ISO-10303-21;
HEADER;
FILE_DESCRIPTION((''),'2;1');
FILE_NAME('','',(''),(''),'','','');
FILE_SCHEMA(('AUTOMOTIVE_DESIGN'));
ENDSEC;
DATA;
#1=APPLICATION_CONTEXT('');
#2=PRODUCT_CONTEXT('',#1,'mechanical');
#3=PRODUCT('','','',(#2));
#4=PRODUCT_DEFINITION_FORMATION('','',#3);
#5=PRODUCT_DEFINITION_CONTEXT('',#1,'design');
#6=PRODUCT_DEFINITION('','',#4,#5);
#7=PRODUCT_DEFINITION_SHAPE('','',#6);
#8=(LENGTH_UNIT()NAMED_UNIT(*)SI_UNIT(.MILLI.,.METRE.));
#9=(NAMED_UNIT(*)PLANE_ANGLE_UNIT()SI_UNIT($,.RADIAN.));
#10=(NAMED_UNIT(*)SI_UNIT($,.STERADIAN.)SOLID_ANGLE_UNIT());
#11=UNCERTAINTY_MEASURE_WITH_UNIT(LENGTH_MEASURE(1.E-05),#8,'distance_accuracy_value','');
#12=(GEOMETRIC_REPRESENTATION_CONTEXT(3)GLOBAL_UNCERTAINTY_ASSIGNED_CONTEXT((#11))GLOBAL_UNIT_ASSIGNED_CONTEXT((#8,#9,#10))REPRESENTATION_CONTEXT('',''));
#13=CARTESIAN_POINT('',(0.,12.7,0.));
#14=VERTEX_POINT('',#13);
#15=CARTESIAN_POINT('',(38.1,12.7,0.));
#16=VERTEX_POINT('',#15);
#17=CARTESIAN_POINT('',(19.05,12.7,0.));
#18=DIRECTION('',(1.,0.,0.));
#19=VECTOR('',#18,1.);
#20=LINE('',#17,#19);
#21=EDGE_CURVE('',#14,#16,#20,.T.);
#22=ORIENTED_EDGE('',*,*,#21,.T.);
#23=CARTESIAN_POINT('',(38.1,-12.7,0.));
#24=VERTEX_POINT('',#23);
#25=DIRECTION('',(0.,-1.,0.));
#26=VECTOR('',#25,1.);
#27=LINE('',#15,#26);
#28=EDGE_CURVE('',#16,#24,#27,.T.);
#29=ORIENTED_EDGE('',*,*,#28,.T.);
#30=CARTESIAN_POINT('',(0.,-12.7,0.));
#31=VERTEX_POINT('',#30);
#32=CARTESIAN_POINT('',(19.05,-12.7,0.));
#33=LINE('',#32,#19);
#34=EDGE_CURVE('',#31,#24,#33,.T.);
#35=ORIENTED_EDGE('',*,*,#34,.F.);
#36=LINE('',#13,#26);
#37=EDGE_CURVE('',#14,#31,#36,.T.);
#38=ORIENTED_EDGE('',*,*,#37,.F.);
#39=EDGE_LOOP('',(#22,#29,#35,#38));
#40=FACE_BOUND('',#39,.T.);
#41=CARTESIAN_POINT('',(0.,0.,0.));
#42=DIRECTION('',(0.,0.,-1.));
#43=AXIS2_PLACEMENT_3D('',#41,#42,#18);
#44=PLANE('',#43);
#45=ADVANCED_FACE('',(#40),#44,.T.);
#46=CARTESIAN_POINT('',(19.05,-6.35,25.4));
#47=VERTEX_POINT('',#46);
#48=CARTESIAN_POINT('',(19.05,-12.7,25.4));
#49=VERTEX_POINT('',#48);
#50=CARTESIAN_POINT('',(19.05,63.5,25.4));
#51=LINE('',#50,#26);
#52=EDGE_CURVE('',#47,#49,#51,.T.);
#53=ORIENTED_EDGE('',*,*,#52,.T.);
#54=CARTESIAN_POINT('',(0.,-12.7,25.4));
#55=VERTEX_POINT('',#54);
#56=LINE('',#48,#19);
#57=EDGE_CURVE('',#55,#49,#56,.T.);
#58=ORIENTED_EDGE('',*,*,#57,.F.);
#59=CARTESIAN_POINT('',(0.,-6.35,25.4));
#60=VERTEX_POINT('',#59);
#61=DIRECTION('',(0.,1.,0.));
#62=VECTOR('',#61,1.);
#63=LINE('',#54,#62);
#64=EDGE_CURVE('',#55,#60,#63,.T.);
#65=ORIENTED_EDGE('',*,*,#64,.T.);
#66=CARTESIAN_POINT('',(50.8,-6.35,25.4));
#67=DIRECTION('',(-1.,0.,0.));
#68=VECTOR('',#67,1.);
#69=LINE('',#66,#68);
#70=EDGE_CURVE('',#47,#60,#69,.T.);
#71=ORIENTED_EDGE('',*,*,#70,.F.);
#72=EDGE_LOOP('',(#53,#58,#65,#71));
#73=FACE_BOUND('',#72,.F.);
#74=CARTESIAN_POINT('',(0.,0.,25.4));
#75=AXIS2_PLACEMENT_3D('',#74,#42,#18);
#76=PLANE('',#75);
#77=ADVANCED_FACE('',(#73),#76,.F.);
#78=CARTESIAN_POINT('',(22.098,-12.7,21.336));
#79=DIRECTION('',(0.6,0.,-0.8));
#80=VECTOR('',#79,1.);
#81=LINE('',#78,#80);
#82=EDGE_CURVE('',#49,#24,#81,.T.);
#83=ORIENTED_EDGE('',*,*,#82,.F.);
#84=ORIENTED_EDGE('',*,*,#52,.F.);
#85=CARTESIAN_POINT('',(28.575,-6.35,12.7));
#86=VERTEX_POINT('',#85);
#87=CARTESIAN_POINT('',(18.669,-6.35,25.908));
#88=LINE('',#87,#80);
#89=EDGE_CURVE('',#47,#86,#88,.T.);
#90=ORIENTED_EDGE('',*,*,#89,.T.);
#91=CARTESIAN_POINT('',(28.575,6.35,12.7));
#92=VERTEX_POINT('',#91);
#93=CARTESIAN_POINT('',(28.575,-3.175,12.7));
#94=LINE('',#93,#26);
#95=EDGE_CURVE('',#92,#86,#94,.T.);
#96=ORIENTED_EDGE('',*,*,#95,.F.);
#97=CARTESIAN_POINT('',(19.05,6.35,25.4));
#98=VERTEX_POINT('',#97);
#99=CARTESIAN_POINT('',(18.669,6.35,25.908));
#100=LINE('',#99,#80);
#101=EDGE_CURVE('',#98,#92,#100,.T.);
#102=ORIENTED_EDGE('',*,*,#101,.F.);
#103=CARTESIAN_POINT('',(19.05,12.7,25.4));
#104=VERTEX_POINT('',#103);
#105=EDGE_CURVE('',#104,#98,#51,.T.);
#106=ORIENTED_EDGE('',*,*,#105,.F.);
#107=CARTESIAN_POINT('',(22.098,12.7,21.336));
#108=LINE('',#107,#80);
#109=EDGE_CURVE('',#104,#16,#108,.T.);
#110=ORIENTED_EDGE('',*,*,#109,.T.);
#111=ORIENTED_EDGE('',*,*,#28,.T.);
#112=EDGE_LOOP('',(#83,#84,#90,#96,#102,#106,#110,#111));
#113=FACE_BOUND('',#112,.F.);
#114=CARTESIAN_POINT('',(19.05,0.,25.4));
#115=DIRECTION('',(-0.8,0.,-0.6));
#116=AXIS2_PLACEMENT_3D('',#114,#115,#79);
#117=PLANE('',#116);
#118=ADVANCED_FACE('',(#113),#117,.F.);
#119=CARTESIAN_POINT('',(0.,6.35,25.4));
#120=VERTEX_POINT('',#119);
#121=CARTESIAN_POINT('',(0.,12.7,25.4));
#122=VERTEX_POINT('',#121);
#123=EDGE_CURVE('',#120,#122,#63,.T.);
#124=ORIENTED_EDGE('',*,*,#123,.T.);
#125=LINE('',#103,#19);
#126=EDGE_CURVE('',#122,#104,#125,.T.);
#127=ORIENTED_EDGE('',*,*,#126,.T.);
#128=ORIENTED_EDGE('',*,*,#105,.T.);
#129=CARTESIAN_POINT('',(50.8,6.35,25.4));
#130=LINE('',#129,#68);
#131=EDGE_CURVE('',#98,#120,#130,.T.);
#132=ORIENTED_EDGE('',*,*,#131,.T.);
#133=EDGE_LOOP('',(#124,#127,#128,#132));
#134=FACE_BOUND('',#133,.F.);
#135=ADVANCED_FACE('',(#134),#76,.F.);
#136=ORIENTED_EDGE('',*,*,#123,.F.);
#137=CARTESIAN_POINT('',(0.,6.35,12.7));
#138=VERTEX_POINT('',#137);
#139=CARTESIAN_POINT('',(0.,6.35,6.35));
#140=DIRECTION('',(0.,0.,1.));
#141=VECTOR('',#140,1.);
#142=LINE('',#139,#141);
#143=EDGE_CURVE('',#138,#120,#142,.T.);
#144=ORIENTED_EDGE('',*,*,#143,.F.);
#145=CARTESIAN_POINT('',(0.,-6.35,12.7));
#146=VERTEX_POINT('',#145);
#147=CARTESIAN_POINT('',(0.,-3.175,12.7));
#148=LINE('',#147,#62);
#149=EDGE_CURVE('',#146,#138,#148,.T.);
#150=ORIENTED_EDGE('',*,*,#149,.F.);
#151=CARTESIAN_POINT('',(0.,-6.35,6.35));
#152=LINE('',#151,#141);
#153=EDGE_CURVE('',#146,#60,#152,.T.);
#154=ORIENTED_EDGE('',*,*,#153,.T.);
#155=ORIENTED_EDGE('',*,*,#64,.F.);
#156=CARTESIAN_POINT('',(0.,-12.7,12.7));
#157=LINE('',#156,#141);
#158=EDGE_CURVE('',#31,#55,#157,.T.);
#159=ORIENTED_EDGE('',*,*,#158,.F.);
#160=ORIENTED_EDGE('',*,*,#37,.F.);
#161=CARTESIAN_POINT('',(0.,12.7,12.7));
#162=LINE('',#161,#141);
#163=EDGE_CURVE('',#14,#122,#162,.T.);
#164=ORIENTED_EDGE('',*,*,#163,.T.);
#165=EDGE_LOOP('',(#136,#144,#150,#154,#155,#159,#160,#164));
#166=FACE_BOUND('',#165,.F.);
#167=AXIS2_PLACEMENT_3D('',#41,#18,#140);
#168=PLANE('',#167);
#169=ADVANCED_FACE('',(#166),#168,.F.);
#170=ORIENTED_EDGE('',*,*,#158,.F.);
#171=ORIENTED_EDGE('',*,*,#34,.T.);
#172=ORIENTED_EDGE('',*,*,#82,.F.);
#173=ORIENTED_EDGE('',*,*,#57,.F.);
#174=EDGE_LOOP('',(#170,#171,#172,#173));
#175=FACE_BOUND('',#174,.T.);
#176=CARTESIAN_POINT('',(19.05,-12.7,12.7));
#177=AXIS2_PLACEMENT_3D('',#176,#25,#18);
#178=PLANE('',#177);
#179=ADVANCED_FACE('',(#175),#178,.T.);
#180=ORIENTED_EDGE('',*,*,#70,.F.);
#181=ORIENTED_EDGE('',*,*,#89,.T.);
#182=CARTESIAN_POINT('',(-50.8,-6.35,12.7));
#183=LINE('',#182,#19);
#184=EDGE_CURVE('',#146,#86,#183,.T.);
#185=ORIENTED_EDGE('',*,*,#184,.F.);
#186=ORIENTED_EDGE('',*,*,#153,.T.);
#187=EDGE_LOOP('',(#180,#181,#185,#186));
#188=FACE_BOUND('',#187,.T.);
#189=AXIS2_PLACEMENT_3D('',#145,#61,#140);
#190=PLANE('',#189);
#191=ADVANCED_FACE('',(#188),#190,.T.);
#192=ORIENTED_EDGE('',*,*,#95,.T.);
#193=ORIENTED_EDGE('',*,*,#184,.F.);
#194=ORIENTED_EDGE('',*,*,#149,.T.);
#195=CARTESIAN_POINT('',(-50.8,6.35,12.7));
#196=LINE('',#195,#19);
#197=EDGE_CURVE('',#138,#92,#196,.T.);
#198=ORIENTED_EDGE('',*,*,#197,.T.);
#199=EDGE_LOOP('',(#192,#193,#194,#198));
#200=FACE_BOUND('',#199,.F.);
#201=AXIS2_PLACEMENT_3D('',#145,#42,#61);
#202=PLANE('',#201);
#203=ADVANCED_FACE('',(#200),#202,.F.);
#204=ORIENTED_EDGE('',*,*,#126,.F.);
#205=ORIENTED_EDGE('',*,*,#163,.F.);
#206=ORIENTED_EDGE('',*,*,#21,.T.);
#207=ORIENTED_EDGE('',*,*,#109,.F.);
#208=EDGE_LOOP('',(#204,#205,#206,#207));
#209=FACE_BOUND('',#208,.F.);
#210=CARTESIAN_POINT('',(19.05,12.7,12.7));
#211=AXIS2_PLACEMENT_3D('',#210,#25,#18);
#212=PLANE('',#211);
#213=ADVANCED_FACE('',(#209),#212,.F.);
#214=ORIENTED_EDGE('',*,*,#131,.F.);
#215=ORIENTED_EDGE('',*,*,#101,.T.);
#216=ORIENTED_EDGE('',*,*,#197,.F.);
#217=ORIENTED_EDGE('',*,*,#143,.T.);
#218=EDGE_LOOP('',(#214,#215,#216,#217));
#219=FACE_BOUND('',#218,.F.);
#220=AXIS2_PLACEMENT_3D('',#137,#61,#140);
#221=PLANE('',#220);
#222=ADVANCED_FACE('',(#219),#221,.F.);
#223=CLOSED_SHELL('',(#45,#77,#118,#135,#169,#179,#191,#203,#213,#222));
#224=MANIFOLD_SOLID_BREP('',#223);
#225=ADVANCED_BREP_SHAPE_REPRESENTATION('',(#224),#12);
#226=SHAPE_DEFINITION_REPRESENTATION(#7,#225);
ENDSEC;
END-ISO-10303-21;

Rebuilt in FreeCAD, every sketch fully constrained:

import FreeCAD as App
import Part
import Sketcher

V = App.Vector
Q = App.Units.Quantity


def add_polygon(sketch, points):
    """Adds a closed chain of lines whose ends are joined by coincident constraints."""
    first, n = sketch.GeometryCount, len(points)
    for a, b in zip(points, points[1:] + points[:1]):
        sketch.addGeometry(Part.LineSegment(App.Vector(*a, 0), App.Vector(*b, 0)), False)
    for i in range(n):
        sketch.addConstraint(Sketcher.Constraint("Coincident", first + i, 2, first + (i + 1) % n, 1))

doc = App.newDocument("Part")
body = doc.addObject("PartDesign::Body", "Body")

# Sketch on XZ plane
sketch1 = doc.addObject("Sketcher::SketchObject", "Sketch")
body.addObject(sketch1)
sketch1.AttachmentSupport = (doc.XZ_Plane, [""])
sketch1.MapMode = "FlatFace"
add_polygon(sketch1, [(0, 25), (0, 0), (38, 0), (38, 25)])  # lines 0-3
sketch1.addConstraint([
    Sketcher.Constraint("Vertical", 0),
    Sketcher.Constraint("Horizontal", 1),
    Sketcher.Constraint("Vertical", 2),
    Sketcher.Constraint("Horizontal", 3),
    Sketcher.Constraint("Coincident", 0, 2, -1, 1),
    Sketcher.Constraint("DistanceY", 0, 2, 0, 1, Q("1 in")),
    Sketcher.Constraint("DistanceX", 1, 1, 1, 2, Q("1.5 in")),
])
pad1 = doc.addObject("PartDesign::Pad", "Pad")
body.addObject(pad1)
pad1.Profile = sketch1
pad1.Length = Q("1 in")
pad1.Midplane = True

# Sketch on XZ plane
sketch2 = doc.addObject("Sketcher::SketchObject", "Sketch001")
body.addObject(sketch2)
sketch2.AttachmentSupport = (doc.XZ_Plane, [""])
sketch2.MapMode = "FlatFace"
add_polygon(sketch2, [(38, 25), (19, 25), (38, 0)])  # lines 0-2
sketch2.addConstraint([
    Sketcher.Constraint("Horizontal", 0),
    Sketcher.Constraint("Vertical", 2),
    Sketcher.Constraint("PointOnObject", 1, 2, -1),
    Sketcher.Constraint("DistanceY", 2, 1, 2, 2, Q("1 in")),
    Sketcher.Constraint("DistanceX", 0, 2, 0, 1, Q("0.75 in")),
    Sketcher.Constraint("DistanceX", -1, 1, 1, 2, Q("1.5 in")),
])
pocket1 = doc.addObject("PartDesign::Pocket", "Pocket")
body.addObject(pocket1)
pocket1.Profile = sketch2
pocket1.Length = Q("5 in")
pocket1.Midplane = True

# Sketch on YZ plane
sketch3 = doc.addObject("Sketcher::SketchObject", "Sketch002")
body.addObject(sketch3)
sketch3.AttachmentSupport = (doc.YZ_Plane, [""])
sketch3.MapMode = "FlatFace"
add_polygon(sketch3, [(-6, 25), (-6, 13), (6, 13), (6, 25)])  # lines 0-3
sketch3.addConstraint([
    Sketcher.Constraint("Vertical", 0),
    Sketcher.Constraint("Horizontal", 1),
    Sketcher.Constraint("Vertical", 2),
    Sketcher.Constraint("Horizontal", 3),
    Sketcher.Constraint("Equal", 3, 0),
    Sketcher.Constraint("DistanceX", 1, 1, 1, 2, Q("0.5 in")),
    Sketcher.Constraint("DistanceY", -1, 1, 2, 2, Q("1 in")),
    Sketcher.Constraint("DistanceX", 0, 2, -1, 1, Q("0.25 in")),
])
pocket2 = doc.addObject("PartDesign::Pocket", "Pocket001")
body.addObject(pocket2)
pocket2.Profile = sketch3
pocket2.Length = Q("4 in")
pocket2.Midplane = True

doc.recompute()
